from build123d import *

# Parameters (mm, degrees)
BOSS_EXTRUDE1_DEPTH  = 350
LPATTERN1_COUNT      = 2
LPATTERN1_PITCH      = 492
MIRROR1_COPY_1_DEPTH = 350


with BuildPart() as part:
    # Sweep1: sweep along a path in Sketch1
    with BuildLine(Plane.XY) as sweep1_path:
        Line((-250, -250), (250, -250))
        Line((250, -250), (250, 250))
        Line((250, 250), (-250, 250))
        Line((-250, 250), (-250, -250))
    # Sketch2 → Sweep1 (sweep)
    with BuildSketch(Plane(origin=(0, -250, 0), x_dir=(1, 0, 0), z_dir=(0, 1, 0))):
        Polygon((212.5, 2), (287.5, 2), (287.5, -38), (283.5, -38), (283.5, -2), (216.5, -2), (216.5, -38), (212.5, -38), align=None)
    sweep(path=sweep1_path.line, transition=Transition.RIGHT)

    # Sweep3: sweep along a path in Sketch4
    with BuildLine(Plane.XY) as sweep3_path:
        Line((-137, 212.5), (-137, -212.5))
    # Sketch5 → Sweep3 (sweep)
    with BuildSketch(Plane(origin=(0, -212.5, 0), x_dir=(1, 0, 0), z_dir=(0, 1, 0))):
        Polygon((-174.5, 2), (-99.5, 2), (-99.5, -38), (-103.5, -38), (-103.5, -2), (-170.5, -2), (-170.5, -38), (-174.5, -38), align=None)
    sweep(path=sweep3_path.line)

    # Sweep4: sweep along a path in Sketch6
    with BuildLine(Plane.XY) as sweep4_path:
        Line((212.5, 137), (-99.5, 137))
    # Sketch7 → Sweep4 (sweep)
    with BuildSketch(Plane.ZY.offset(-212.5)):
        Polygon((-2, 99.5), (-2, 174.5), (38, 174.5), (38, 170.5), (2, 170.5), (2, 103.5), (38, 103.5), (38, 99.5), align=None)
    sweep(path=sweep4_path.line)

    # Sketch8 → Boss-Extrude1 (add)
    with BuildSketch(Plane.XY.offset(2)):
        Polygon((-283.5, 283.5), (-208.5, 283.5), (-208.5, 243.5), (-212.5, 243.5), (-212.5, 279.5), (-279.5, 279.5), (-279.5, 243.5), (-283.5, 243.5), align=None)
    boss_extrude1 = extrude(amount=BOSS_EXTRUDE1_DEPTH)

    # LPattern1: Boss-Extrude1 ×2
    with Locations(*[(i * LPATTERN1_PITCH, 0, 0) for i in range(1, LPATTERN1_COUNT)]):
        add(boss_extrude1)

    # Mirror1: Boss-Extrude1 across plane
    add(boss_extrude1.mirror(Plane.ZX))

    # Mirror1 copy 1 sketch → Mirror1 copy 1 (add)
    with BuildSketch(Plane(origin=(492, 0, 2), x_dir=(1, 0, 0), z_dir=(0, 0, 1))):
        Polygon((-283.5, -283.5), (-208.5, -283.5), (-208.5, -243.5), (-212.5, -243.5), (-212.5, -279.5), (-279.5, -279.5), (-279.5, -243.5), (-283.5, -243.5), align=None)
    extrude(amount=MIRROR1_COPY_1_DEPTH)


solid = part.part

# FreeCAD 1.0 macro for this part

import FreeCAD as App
import Part
import Sketcher
Q = App.Units.Quantity


def add_polygon(sketch, points):
    """Adds a closed chain of lines whose ends are joined by coincident constraints."""
    first, n = sketch.GeometryCount, len(points)
    for a, b in zip(points, points[1:] + points[:1]):
        sketch.addGeometry(Part.LineSegment(App.Vector(*a, 0), App.Vector(*b, 0)), False)
    for i in range(n):
        sketch.addConstraint(Sketcher.Constraint("Coincident", first + i, 2, first + (i + 1) % n, 1))

doc = App.newDocument("Part")
body = doc.addObject("PartDesign::Body", "Body")

# Sketch on XZ plane
sketch1 = body.newObject("Sketcher::SketchObject", "Sketch")
sketch1.AttachmentSupport = (doc.getObject("XZ_Plane"), [""])
sketch1.MapMode = "FlatFace"
sketch1.AttachmentOffset = App.Placement(App.Vector(0, 0, 250), App.Rotation())
add_polygon(sketch1, [(287.5, -2), (212.5, -2), (212.5, 38), (216.5, 38), (216.5, 2), (283.5, 2), (283.5, 38), (287.5, 38)])  # lines 0-7
sketch1.addConstraint([
    Sketcher.Constraint("Horizontal", 0),
    Sketcher.Constraint("Vertical", 1),
    Sketcher.Constraint("Horizontal", 2),
    Sketcher.Constraint("Vertical", 3),
    Sketcher.Constraint("Horizontal", 4),
    Sketcher.Constraint("Vertical", 5),
    Sketcher.Constraint("Horizontal", 6),
    Sketcher.Constraint("Vertical", 7),
    Sketcher.Constraint("Horizontal", 2, 2, 5, 2),
    Sketcher.Constraint("Equal", 2, 6),
    Sketcher.Constraint("DistanceX", 0, 2, 0, 1, Q("75 mm")),
    Sketcher.Constraint("DistanceX", 2, 1, 2, 2, Q("4 mm")),
    Sketcher.Constraint("DistanceY", 1, 1, 1, 2, Q("40 mm")),
    Sketcher.Constraint("DistanceY", 3, 2, 3, 1, Q("36 mm")),
    Sketcher.Constraint("DistanceY", 0, 2, -1, 1, Q("2 mm")),
    Sketcher.Constraint("DistanceX", -1, 1, 0, 2, Q("212.5 mm")),
])

# Sketch on XY plane
sketch2 = body.newObject("Sketcher::SketchObject", "Sketch001")
sketch2.AttachmentSupport = (doc.getObject("XY_Plane"), [""])
sketch2.MapMode = "FlatFace"
add_polygon(sketch2, [(-250, -250), (250, -250), (250, 250), (-250, 250)])  # lines 0-3
sketch2.addConstraint([
    Sketcher.Constraint("Horizontal", 0),
    Sketcher.Constraint("Vertical", 1),
    Sketcher.Constraint("Horizontal", 2),
    Sketcher.Constraint("Vertical", 3),
    Sketcher.Constraint("Symmetric", 0, 2, 2, 2, -1, 1),
    Sketcher.Constraint("Equal", 2, 1),
    Sketcher.Constraint("DistanceX", 0, 1, 0, 2, Q("500 mm")),
])
doc.recompute()

additivepipe = body.newObject("PartDesign::AdditivePipe", "AdditivePipe")
additivepipe.Profile = sketch1
additivepipe.Spine = (sketch2, ["Edge1", "Edge2", "Edge3", "Edge4"])
additivepipe.Transition = "Right corner"

# Sketch on XZ plane
sketch3 = body.newObject("Sketcher::SketchObject", "Sketch002")
sketch3.AttachmentSupport = (doc.getObject("XZ_Plane"), [""])
sketch3.MapMode = "FlatFace"
sketch3.AttachmentOffset = App.Placement(App.Vector(0, 0, 212.5), App.Rotation())
add_polygon(sketch3, [(-99.5, -2), (-174.5, -2), (-174.5, 38), (-170.5, 38), (-170.5, 2), (-103.5, 2), (-103.5, 38), (-99.5, 38)])  # lines 0-7
sketch3.addConstraint([
    Sketcher.Constraint("Horizontal", 0),
    Sketcher.Constraint("Vertical", 1),
    Sketcher.Constraint("Horizontal", 2),
    Sketcher.Constraint("Vertical", 3),
    Sketcher.Constraint("Horizontal", 4),
    Sketcher.Constraint("Vertical", 5),
    Sketcher.Constraint("Horizontal", 6),
    Sketcher.Constraint("Vertical", 7),
    Sketcher.Constraint("Horizontal", 2, 2, 5, 2),
    Sketcher.Constraint("Equal", 2, 6),
    Sketcher.Constraint("DistanceX", 0, 2, 0, 1, Q("75 mm")),
    Sketcher.Constraint("DistanceX", 2, 1, 2, 2, Q("4 mm")),
    Sketcher.Constraint("DistanceY", 1, 1, 1, 2, Q("40 mm")),
    Sketcher.Constraint("DistanceY", 3, 2, 3, 1, Q("36 mm")),
    Sketcher.Constraint("DistanceY", 0, 2, -1, 1, Q("2 mm")),
    Sketcher.Constraint("DistanceX", 0, 2, -1, 1, Q("174.5 mm")),
])

# Sketch on XY plane
sketch4 = body.newObject("Sketcher::SketchObject", "Sketch003")
sketch4.AttachmentSupport = (doc.getObject("XY_Plane"), [""])
sketch4.MapMode = "FlatFace"
sketch4.addGeometry(Part.LineSegment(App.Vector(-137, 212, 0), App.Vector(-137, -212, 0)), False)
sketch4.addConstraint([
    Sketcher.Constraint("Vertical", 0),
    Sketcher.Constraint("DistanceY", 0, 2, 0, 1, Q("425 mm")),
    Sketcher.Constraint("DistanceX", 0, 1, -1, 1, Q("137 mm")),
    Sketcher.Constraint("DistanceY", -1, 1, 0, 1, Q("212.5 mm")),
])
doc.recompute()

additivepipe2 = body.newObject("PartDesign::AdditivePipe", "AdditivePipe001")
additivepipe2.Profile = sketch3
additivepipe2.Spine = (sketch4, ["Edge1"])

# Sketch on YZ plane
sketch5 = body.newObject("Sketcher::SketchObject", "Sketch004")
sketch5.AttachmentSupport = (doc.getObject("YZ_Plane"), [""])
sketch5.MapMode = "FlatFace"
sketch5.AttachmentOffset = App.Placement(App.Vector(0, 0, 212.5), App.Rotation())
add_polygon(sketch5, [(174.5, -2), (99.5, -2), (99.5, 38), (103.5, 38), (103.5, 2), (170.5, 2), (170.5, 38), (174.5, 38)])  # lines 0-7
sketch5.addConstraint([
    Sketcher.Constraint("Horizontal", 0),
    Sketcher.Constraint("Vertical", 1),
    Sketcher.Constraint("Horizontal", 2),
    Sketcher.Constraint("Vertical", 3),
    Sketcher.Constraint("Horizontal", 4),
    Sketcher.Constraint("Vertical", 5),
    Sketcher.Constraint("Horizontal", 6),
    Sketcher.Constraint("Vertical", 7),
    Sketcher.Constraint("Horizontal", 2, 2, 5, 2),
    Sketcher.Constraint("Equal", 2, 6),
    Sketcher.Constraint("DistanceX", 0, 2, 0, 1, Q("75 mm")),
    Sketcher.Constraint("DistanceX", 2, 1, 2, 2, Q("4 mm")),
    Sketcher.Constraint("DistanceY", 1, 1, 1, 2, Q("40 mm")),
    Sketcher.Constraint("DistanceY", 3, 2, 3, 1, Q("36 mm")),
    Sketcher.Constraint("DistanceY", 0, 2, -1, 1, Q("2 mm")),
    Sketcher.Constraint("DistanceX", -1, 1, 0, 2, Q("99.5 mm")),
])

# Sketch on XY plane
sketch6 = body.newObject("Sketcher::SketchObject", "Sketch005")
sketch6.AttachmentSupport = (doc.getObject("XY_Plane"), [""])
sketch6.MapMode = "FlatFace"
sketch6.addGeometry(Part.LineSegment(App.Vector(212, 137, 0), App.Vector(-100, 137, 0)), False)
sketch6.addConstraint([
    Sketcher.Constraint("Horizontal", 0),
    Sketcher.Constraint("DistanceX", 0, 2, 0, 1, Q("312 mm")),
    Sketcher.Constraint("DistanceY", -1, 1, 0, 1, Q("137 mm")),
    Sketcher.Constraint("DistanceX", -1, 1, 0, 1, Q("212.5 mm")),
])
doc.recompute()

additivepipe3 = body.newObject("PartDesign::AdditivePipe", "AdditivePipe002")
additivepipe3.Profile = sketch5
additivepipe3.Spine = (sketch6, ["Edge1"])

# Sketch on XY plane
sketch7 = body.newObject("Sketcher::SketchObject", "Sketch006")
sketch7.AttachmentSupport = (doc.getObject("XY_Plane"), [""])
sketch7.MapMode = "FlatFace"
sketch7.AttachmentOffset = App.Placement(App.Vector(0, 0, 2), App.Rotation())
add_polygon(sketch7, [(-208.5, 283.5), (-283.5, 283.5), (-283.5, 243.5), (-279.5, 243.5), (-279.5, 279.5), (-212.5, 279.5), (-212.5, 243.5), (-208.5, 243.5)])  # lines 0-7
sketch7.addConstraint([
    Sketcher.Constraint("Horizontal", 0),
    Sketcher.Constraint("Vertical", 1),
    Sketcher.Constraint("Horizontal", 2),
    Sketcher.Constraint("Vertical", 3),
    Sketcher.Constraint("Horizontal", 4),
    Sketcher.Constraint("Vertical", 5),
    Sketcher.Constraint("Horizontal", 6),
    Sketcher.Constraint("Vertical", 7),
    Sketcher.Constraint("Horizontal", 2, 2, 5, 2),
    Sketcher.Constraint("Equal", 2, 6),
    Sketcher.Constraint("DistanceX", 0, 2, 0, 1, Q("75 mm")),
    Sketcher.Constraint("DistanceX", 2, 1, 2, 2, Q("4 mm")),
    Sketcher.Constraint("DistanceY", 1, 2, 1, 1, Q("40 mm")),
    Sketcher.Constraint("DistanceY", 3, 1, 3, 2, Q("36 mm")),
    Sketcher.Constraint("DistanceX", 0, 2, -1, 1, Q("283.5 mm")),
    Sketcher.Constraint("DistanceY", -1, 1, 0, 2, Q("283.5 mm")),
])
pad1 = body.newObject("PartDesign::Pad", "Pad")
pad1.Profile = sketch7
pad1.Length = 350
doc.recompute()

linearpattern = body.newObject("PartDesign::LinearPattern", "LinearPattern")
linearpattern.Originals = [pad1]
linearpattern.Direction = (doc.getObject("X_Axis"), [""])
linearpattern.Mode = "offset"
linearpattern.Offset = 492
linearpattern.Occurrences = 2
body.Tip = linearpattern
doc.recompute()

mirrored = body.newObject("PartDesign::Mirrored", "Mirrored")
mirrored.Originals = [pad1]
mirrored.MirrorPlane = (doc.getObject("XZ_Plane"), [""])
body.Tip = mirrored

# Sketch on XY plane
sketch8 = body.newObject("Sketcher::SketchObject", "Sketch007")
sketch8.AttachmentSupport = (doc.getObject("XY_Plane"), [""])
sketch8.MapMode = "FlatFace"
sketch8.AttachmentOffset = App.Placement(App.Vector(0, 0, 2), App.Rotation())
add_polygon(sketch8, [(208.5, -283.5), (283.5, -283.5), (283.5, -243.5), (279.5, -243.5), (279.5, -279.5), (212.5, -279.5), (212.5, -243.5), (208.5, -243.5)])  # lines 0-7
sketch8.addConstraint([
    Sketcher.Constraint("Horizontal", 0),
    Sketcher.Constraint("Vertical", 1),
    Sketcher.Constraint("Horizontal", 2),
    Sketcher.Constraint("Vertical", 3),
    Sketcher.Constraint("Horizontal", 4),
    Sketcher.Constraint("Vertical", 5),
    Sketcher.Constraint("Horizontal", 6),
    Sketcher.Constraint("Vertical", 7),
    Sketcher.Constraint("Horizontal", 2, 2, 5, 2),
    Sketcher.Constraint("Equal", 2, 6),
    Sketcher.Constraint("DistanceX", 0, 1, 0, 2, Q("75 mm")),
    Sketcher.Constraint("DistanceX", 2, 2, 2, 1, Q("4 mm")),
    Sketcher.Constraint("DistanceY", 1, 1, 1, 2, Q("40 mm")),
    Sketcher.Constraint("DistanceY", 3, 2, 3, 1, Q("36 mm")),
    Sketcher.Constraint("DistanceX", -1, 1, 0, 2, Q("283.5 mm")),
    Sketcher.Constraint("DistanceY", 0, 2, -1, 1, Q("283.5 mm")),
])
pad2 = body.newObject("PartDesign::Pad", "Pad001")
pad2.Profile = sketch8
pad2.Length = 350

doc.recompute()
